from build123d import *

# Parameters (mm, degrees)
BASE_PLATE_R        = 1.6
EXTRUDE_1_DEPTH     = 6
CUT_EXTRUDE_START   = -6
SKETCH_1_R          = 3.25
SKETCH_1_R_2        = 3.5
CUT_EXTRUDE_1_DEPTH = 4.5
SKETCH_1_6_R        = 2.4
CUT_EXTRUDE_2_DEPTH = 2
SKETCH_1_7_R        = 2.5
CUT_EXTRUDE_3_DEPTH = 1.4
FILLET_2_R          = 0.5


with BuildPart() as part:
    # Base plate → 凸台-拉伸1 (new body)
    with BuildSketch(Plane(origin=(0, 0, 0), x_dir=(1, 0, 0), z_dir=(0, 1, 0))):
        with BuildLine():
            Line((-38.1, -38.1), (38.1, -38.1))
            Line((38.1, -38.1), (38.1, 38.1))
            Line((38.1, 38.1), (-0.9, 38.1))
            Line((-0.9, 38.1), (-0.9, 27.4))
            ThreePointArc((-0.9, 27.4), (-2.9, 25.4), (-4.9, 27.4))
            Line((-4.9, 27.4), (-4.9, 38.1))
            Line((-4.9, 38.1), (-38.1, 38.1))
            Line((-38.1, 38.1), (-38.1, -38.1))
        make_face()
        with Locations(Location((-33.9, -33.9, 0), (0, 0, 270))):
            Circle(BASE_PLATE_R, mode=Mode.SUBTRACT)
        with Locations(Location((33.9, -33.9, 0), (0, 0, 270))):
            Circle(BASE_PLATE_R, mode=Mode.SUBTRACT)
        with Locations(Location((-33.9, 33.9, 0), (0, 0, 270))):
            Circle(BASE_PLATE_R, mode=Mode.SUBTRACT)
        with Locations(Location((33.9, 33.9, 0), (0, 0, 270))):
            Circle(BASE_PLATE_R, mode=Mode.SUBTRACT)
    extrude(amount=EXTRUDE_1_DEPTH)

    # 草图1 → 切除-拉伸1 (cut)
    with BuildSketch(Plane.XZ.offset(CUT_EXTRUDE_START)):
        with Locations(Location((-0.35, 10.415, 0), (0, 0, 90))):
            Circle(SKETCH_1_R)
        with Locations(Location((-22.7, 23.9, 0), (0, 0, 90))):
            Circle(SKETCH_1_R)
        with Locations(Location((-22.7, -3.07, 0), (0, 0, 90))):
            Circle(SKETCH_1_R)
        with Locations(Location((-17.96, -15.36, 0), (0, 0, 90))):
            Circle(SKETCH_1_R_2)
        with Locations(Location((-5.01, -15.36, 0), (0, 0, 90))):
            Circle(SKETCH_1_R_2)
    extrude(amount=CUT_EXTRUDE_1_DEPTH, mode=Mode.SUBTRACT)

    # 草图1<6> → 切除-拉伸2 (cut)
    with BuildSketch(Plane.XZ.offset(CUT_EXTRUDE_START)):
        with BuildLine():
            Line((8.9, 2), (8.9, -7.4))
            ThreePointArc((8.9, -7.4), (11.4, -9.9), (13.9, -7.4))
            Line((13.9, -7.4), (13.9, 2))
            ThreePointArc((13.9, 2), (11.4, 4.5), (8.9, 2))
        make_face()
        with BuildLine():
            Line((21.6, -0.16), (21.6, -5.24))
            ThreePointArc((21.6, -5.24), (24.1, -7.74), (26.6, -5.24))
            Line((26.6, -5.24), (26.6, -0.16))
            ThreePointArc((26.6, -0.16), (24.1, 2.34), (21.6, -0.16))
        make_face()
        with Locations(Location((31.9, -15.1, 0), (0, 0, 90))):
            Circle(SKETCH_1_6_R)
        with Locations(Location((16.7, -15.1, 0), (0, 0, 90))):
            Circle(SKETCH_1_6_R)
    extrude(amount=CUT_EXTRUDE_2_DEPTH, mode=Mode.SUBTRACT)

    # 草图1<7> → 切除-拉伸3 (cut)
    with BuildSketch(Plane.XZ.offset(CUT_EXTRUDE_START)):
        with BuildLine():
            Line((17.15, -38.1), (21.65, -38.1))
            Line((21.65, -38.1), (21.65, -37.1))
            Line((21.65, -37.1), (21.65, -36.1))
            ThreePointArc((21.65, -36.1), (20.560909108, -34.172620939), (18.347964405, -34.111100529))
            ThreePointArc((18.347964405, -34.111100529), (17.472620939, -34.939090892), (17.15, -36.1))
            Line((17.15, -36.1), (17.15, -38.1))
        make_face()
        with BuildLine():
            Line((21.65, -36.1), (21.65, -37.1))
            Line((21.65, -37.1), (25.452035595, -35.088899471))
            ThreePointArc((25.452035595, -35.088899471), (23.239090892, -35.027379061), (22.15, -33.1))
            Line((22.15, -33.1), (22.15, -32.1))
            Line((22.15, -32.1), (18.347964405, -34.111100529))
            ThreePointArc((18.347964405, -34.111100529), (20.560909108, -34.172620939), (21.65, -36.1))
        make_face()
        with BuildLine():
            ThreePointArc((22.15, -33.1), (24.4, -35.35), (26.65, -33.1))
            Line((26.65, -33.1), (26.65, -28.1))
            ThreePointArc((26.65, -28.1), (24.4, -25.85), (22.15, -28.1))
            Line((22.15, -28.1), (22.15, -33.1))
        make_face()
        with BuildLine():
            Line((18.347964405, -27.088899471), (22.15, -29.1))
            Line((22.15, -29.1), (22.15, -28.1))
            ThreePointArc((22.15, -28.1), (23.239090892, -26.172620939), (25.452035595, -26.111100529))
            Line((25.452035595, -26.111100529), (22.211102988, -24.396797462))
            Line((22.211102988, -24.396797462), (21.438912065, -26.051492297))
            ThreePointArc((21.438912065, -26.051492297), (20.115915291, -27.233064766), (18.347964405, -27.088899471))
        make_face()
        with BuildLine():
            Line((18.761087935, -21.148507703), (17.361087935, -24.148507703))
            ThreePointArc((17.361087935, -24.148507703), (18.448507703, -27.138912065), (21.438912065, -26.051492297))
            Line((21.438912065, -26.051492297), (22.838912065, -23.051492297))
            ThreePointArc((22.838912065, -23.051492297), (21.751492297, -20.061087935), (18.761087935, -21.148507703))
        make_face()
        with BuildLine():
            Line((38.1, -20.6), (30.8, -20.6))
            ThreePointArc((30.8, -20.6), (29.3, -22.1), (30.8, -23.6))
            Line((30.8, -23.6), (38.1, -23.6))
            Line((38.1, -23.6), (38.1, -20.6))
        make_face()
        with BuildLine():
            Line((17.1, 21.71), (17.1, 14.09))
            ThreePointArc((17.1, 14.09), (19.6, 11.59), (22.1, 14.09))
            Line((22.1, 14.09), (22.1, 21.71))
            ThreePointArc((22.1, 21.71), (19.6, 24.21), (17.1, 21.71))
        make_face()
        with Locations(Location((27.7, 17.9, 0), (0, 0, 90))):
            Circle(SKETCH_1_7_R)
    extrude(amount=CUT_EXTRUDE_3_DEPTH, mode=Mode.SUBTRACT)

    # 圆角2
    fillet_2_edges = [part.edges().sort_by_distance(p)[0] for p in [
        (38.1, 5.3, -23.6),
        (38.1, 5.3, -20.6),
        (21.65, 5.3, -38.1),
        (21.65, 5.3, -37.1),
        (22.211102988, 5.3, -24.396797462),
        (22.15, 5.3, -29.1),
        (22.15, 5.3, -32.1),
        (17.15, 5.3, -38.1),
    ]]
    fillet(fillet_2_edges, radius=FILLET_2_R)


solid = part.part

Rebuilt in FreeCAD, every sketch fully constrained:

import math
import FreeCAD as App
import Part
import Sketcher
from FreeCAD import Vector
Q = App.Units.Quantity


def edges_at(feature, points):
    """Names of the edges that pass closest to the given points."""
    edges = feature.Shape.Edges
    near = lambda p: min(range(len(edges)), key=lambda i: edges[i].distToShape(Part.Vertex(*p))[0])
    return sorted({f"Edge{near(p) + 1}" for p in points})

doc = App.newDocument("Part")
body = doc.addObject("PartDesign::Body", "Body")

# Sketch on XZ plane
sketch1 = body.newObject("Sketcher::SketchObject", "Sketch")
sketch1.AttachmentSupport = (doc.getObject("XZ_Plane"), [""])
sketch1.MapMode = "FlatFace"
sketch1.addGeometry(Part.LineSegment(Vector(-38.1, 38.1, 0), Vector(38.1, 38.1, 0)), False)
sketch1.addGeometry(Part.LineSegment(Vector(38.1, 38.1, 0), Vector(38.1, -38.1, 0)), False)
sketch1.addGeometry(Part.LineSegment(Vector(38.1, -38.1, 0), Vector(-0.9, -38.1, 0)), False)
sketch1.addGeometry(Part.LineSegment(Vector(-0.9, -38.1, 0), Vector(-0.9, -27.4, 0)), False)
sketch1.addGeometry(Part.ArcOfCircle(Part.Circle(Vector(-2.9, -27.4, 0), Vector(0, 0, 1), 2), math.radians(0), math.radians(180)), False)
sketch1.addGeometry(Part.LineSegment(Vector(-4.9, -27.4, 0), Vector(-4.9, -38.1, 0)), False)
sketch1.addGeometry(Part.LineSegment(Vector(-4.9, -38.1, 0), Vector(-38.1, -38.1, 0)), False)
sketch1.addGeometry(Part.LineSegment(Vector(-38.1, -38.1, 0), Vector(-38.1, 38.1, 0)), False)
sketch1.addGeometry(Part.Circle(Vector(-33.9, 33.9, 0), Vector(0, 0, 1), 1.6), False)
sketch1.addGeometry(Part.Circle(Vector(33.9, 33.9, 0), Vector(0, 0, 1), 1.6), False)
sketch1.addGeometry(Part.Circle(Vector(-33.9, -33.9, 0), Vector(0, 0, 1), 1.6), False)
sketch1.addGeometry(Part.Circle(Vector(33.9, -33.9, 0), Vector(0, 0, 1), 1.6), False)
sketch1.addConstraint(Sketcher.Constraint("Coincident", 0, 2, 1, 1))
sketch1.addConstraint(Sketcher.Constraint("Coincident", 1, 2, 2, 1))
sketch1.addConstraint(Sketcher.Constraint("Coincident", 2, 2, 3, 1))
sketch1.addConstraint(Sketcher.Constraint("Tangent", 3, 2, 4, 1))
sketch1.addConstraint(Sketcher.Constraint("Tangent", 4, 2, 5, 1))
sketch1.addConstraint(Sketcher.Constraint("Coincident", 5, 2, 6, 1))
sketch1.addConstraint(Sketcher.Constraint("Coincident", 6, 2, 7, 1))
sketch1.addConstraint(Sketcher.Constraint("Coincident", 7, 2, 0, 1))
sketch1.addConstraint(Sketcher.Constraint("Horizontal", 0))
sketch1.addConstraint(Sketcher.Constraint("Vertical", 1))
sketch1.addConstraint(Sketcher.Constraint("Horizontal", 2))
sketch1.addConstraint(Sketcher.Constraint("Vertical", 3))
sketch1.addConstraint(Sketcher.Constraint("Vertical", 5))
sketch1.addConstraint(Sketcher.Constraint("Horizontal", 6))
sketch1.addConstraint(Sketcher.Constraint("Vertical", 7))
sketch1.addConstraint(Sketcher.Constraint("Equal", 8, 9))
sketch1.addConstraint(Sketcher.Constraint("Equal", 9, 10))
sketch1.addConstraint(Sketcher.Constraint("Equal", 10, 11))
sketch1.addConstraint(Sketcher.Constraint("Symmetric", 9, 3, 10, 3, -1, 1))
sketch1.addConstraint(Sketcher.Constraint("Symmetric", 8, 3, 11, 3, -1, 1))
sketch1.addConstraint(Sketcher.Constraint("Symmetric", 0, 2, 6, 2, -1, 1))
sketch1.addConstraint(Sketcher.Constraint("Symmetric", 8, 3, 9, 3, -2))
sketch1.addConstraint(Sketcher.Constraint("Horizontal", 2, 2, 5, 2))
sketch1.addConstraint(Sketcher.Constraint("Equal", 0, 1))
sketch1.addConstraint(Sketcher.Constraint("Radius", 4, Q("2 mm")))
sketch1.addConstraint(Sketcher.Constraint("Diameter", 8, Q("3.2 mm")))
sketch1.addConstraint(Sketcher.Constraint("DistanceX", 2, 2, 2, 1, Q("39 mm")))
sketch1.addConstraint(Sketcher.Constraint("DistanceX", 0, 1, 0, 2, Q("76.2 mm")))
sketch1.addConstraint(Sketcher.Constraint("DistanceY", 3, 1, 3, 2, Q("10.7 mm")))
sketch1.addConstraint(Sketcher.Constraint("DistanceX", 8, 3, 4, 3, Q("31 mm")))
sketch1.addConstraint(Sketcher.Constraint("DistanceY", 11, 3, 0, 2, Q("72 mm")))
pad1 = body.newObject("PartDesign::Pad", "Pad")
pad1.Profile = sketch1
pad1.Length = 6
pad1.Reversed = True

# Sketch on XZ plane
sketch2 = body.newObject("Sketcher::SketchObject", "Sketch001")
sketch2.AttachmentSupport = (doc.getObject("XZ_Plane"), [""])
sketch2.MapMode = "FlatFace"
sketch2.AttachmentOffset = App.Placement(Vector(0, 0, -6), App.Rotation())
sketch2.addGeometry(Part.Circle(Vector(-0.3, 10.4, 0), Vector(0, 0, 1), 3.2), False)
sketch2.addGeometry(Part.Circle(Vector(-22.7, 23.9, 0), Vector(0, 0, 1), 3.2), False)
sketch2.addGeometry(Part.Circle(Vector(-22.7, -3.1, 0), Vector(0, 0, 1), 3.2), False)
sketch2.addGeometry(Part.Circle(Vector(-18, -15.4, 0), Vector(0, 0, 1), 3.5), False)
sketch2.addGeometry(Part.Circle(Vector(-5, -15.4, 0), Vector(0, 0, 1), 3.5), False)
sketch2.addConstraint(Sketcher.Constraint("Equal", 0, 1))
sketch2.addConstraint(Sketcher.Constraint("Equal", 1, 2))
sketch2.addConstraint(Sketcher.Constraint("Equal", 3, 4))
sketch2.addConstraint(Sketcher.Constraint("Horizontal", 3, 3, 4, 3))
sketch2.addConstraint(Sketcher.Constraint("Vertical", 1, 3, 2, 3))
sketch2.addConstraint(Sketcher.Constraint("Diameter", 3, Q("7 mm")))
sketch2.addConstraint(Sketcher.Constraint("Diameter", 0, Q("6.5 mm")))
sketch2.addConstraint(Sketcher.Constraint("DistanceX", 1, 3, -1, 1, Q("22.7 mm")))
sketch2.addConstraint(Sketcher.Constraint("DistanceY", -1, 1, 1, 3, Q("23.9 mm")))
sketch2.addConstraint(Sketcher.Constraint("DistanceX", 0, 3, -1, 1, Q("0.35 mm")))
sketch2.addConstraint(Sketcher.Constraint("DistanceY", 2, 3, -1, 1, Q("3.07 mm")))
sketch2.addConstraint(Sketcher.Constraint("DistanceX", 3, 3, -1, 1, Q("17.96 mm")))
sketch2.addConstraint(Sketcher.Constraint("DistanceY", 3, 3, -1, 1, Q("15.36 mm")))
sketch2.addConstraint(Sketcher.Constraint("DistanceX", 4, 3, -1, 1, Q("5.01 mm")))
sketch2.addConstraint(Sketcher.Constraint("DistanceY", -1, 1, 0, 3, Q("10.415 mm")))
pocket1 = body.newObject("PartDesign::Pocket", "Pocket")
pocket1.Profile = sketch2
pocket1.Length = 4.5
pocket1.Reversed = True

# Sketch on XZ plane
sketch3 = body.newObject("Sketcher::SketchObject", "Sketch002")
sketch3.AttachmentSupport = (doc.getObject("XZ_Plane"), [""])
sketch3.MapMode = "FlatFace"
sketch3.AttachmentOffset = App.Placement(Vector(0, 0, -6), App.Rotation())
sketch3.addGeometry(Part.LineSegment(Vector(8.9, 2, 0), Vector(8.9, -7.4, 0)), False)
sketch3.addGeometry(Part.ArcOfCircle(Part.Circle(Vector(11.4, -7.4, 0), Vector(0, 0, 1), 2.5), math.radians(180), math.radians(360)), False)
sketch3.addGeometry(Part.LineSegment(Vector(13.9, -7.4, 0), Vector(13.9, 2, 0)), False)
sketch3.addGeometry(Part.ArcOfCircle(Part.Circle(Vector(11.4, 2, 0), Vector(0, 0, 1), 2.5), math.radians(0), math.radians(180)), False)
sketch3.addGeometry(Part.LineSegment(Vector(21.6, -0.2, 0), Vector(21.6, -5.2, 0)), False)
sketch3.addGeometry(Part.ArcOfCircle(Part.Circle(Vector(24.1, -5.2, 0), Vector(0, 0, 1), 2.5), math.radians(180), math.radians(360)), False)
sketch3.addGeometry(Part.LineSegment(Vector(26.6, -5.2, 0), Vector(26.6, -0.2, 0)), False)
sketch3.addGeometry(Part.ArcOfCircle(Part.Circle(Vector(24.1, -0.2, 0), Vector(0, 0, 1), 2.5), math.radians(0), math.radians(180)), False)
sketch3.addGeometry(Part.Circle(Vector(31.9, -15.1, 0), Vector(0, 0, 1), 2.4), False)
sketch3.addGeometry(Part.Circle(Vector(16.7, -15.1, 0), Vector(0, 0, 1), 2.4), False)
sketch3.addConstraint(Sketcher.Constraint("Tangent", 0, 2, 1, 1))
sketch3.addConstraint(Sketcher.Constraint("Tangent", 1, 2, 2, 1))
sketch3.addConstraint(Sketcher.Constraint("Tangent", 2, 2, 3, 1))
sketch3.addConstraint(Sketcher.Constraint("Tangent", 3, 2, 0, 1))
sketch3.addConstraint(Sketcher.Constraint("Tangent", 4, 2, 5, 1))
sketch3.addConstraint(Sketcher.Constraint("Tangent", 5, 2, 6, 1))
sketch3.addConstraint(Sketcher.Constraint("Tangent", 6, 2, 7, 1))
sketch3.addConstraint(Sketcher.Constraint("Tangent", 7, 2, 4, 1))
sketch3.addConstraint(Sketcher.Constraint("Vertical", 0))
sketch3.addConstraint(Sketcher.Constraint("Vertical", 2))
sketch3.addConstraint(Sketcher.Constraint("Vertical", 4))
sketch3.addConstraint(Sketcher.Constraint("Vertical", 6))
sketch3.addConstraint(Sketcher.Constraint("Equal", 3, 5))
sketch3.addConstraint(Sketcher.Constraint("Equal", 8, 9))
sketch3.addConstraint(Sketcher.Constraint("Horizontal", 8, 3, 9, 3))
sketch3.addConstraint(Sketcher.Constraint("Diameter", 8, Q("4.8 mm")))
sketch3.addConstraint(Sketcher.Constraint("Radius", 1, Q("2.5 mm")))
sketch3.addConstraint(Sketcher.Constraint("DistanceY", 0, 2, 0, 1, Q("9.4 mm")))
sketch3.addConstraint(Sketcher.Constraint("DistanceY", -1, 1, 3, 3, Q("2 mm")))
sketch3.addConstraint(Sketcher.Constraint("DistanceY", 4, 2, 4, 1, Q("5.08 mm")))
sketch3.addConstraint(Sketcher.Constraint("DistanceX", -1, 1, 1, 3, Q("11.4 mm")))
sketch3.addConstraint(Sketcher.Constraint("DistanceX", -1, 1, 5, 3, Q("24.1 mm")))
sketch3.addConstraint(Sketcher.Constraint("DistanceX", -1, 1, 8, 3, Q("31.9 mm")))
sketch3.addConstraint(Sketcher.Constraint("DistanceY", 8, 3, -1, 1, Q("15.1 mm")))
sketch3.addConstraint(Sketcher.Constraint("DistanceX", -1, 1, 9, 3, Q("16.7 mm")))
sketch3.addConstraint(Sketcher.Constraint("DistanceY", 5, 3, -1, 1, Q("5.24 mm")))
pocket2 = body.newObject("PartDesign::Pocket", "Pocket001")
pocket2.Profile = sketch3
pocket2.Length = 2
pocket2.Reversed = True

# Sketch on XZ plane
sketch4 = body.newObject("Sketcher::SketchObject", "Sketch003")
sketch4.AttachmentSupport = (doc.getObject("XZ_Plane"), [""])
sketch4.MapMode = "FlatFace"
sketch4.AttachmentOffset = App.Placement(Vector(0, 0, -6), App.Rotation())
sketch4.addGeometry(Part.LineSegment(Vector(17.1, -38.1, 0), Vector(21.6, -38.1, 0)), False)
sketch4.addGeometry(Part.LineSegment(Vector(21.6, -38.1, 0), Vector(21.6, -37.1, 0)), False)
sketch4.addGeometry(Part.LineSegment(Vector(21.6, -37.1, 0), Vector(25.5, -35.1, 0)), False)
sketch4.addGeometry(Part.ArcOfCircle(Part.Circle(Vector(24.4, -33.1, 0), Vector(0, 0, 1), 2.2), math.radians(-62), math.radians(0)), False)
sketch4.addGeometry(Part.LineSegment(Vector(26.6, -33.1, 0), Vector(26.6, -28.1, 0)), False)
sketch4.addGeometry(Part.ArcOfCircle(Part.Circle(Vector(24.4, -28.1, 0), Vector(0, 0, 1), 2.2), math.radians(0), math.radians(62)), False)
sketch4.addGeometry(Part.LineSegment(Vector(25.5, -26.1, 0), Vector(22.2, -24.4, 0)), False)
sketch4.addGeometry(Part.LineSegment(Vector(22.2, -24.4, 0), Vector(22.8, -23.1, 0)), False)
sketch4.addGeometry(Part.ArcOfCircle(Part.Circle(Vector(20.8, -22.1, 0), Vector(0, 0, 1), 2.2), math.radians(-25), math.radians(155)), False)
sketch4.addGeometry(Part.LineSegment(Vector(18.8, -21.1, 0), Vector(17.4, -24.1, 0)), False)
sketch4.addGeometry(Part.ArcOfCircle(Part.Circle(Vector(19.4, -25.1, 0), Vector(0, 0, 1), 2.2), math.radians(155), math.radians(242)), False)
sketch4.addGeometry(Part.LineSegment(Vector(18.3, -27.1, 0), Vector(22.1, -29.1, 0)), False)
sketch4.addGeometry(Part.LineSegment(Vector(22.1, -29.1, 0), Vector(22.1, -32.1, 0)), False)
sketch4.addGeometry(Part.LineSegment(Vector(22.1, -32.1, 0), Vector(18.3, -34.1, 0)), False)
sketch4.addGeometry(Part.ArcOfCircle(Part.Circle(Vector(19.4, -36.1, 0), Vector(0, 0, 1), 2.2), math.radians(118), math.radians(180)), False)
sketch4.addGeometry(Part.LineSegment(Vector(17.1, -36.1, 0), Vector(17.1, -38.1, 0)), False)
sketch4.addGeometry(Part.LineSegment(Vector(38.1, -20.6, 0), Vector(30.8, -20.6, 0)), False)
sketch4.addGeometry(Part.ArcOfCircle(Part.Circle(Vector(30.8, -22.1, 0), Vector(0, 0, 1), 1.5), math.radians(90), math.radians(270)), False)
sketch4.addGeometry(Part.LineSegment(Vector(30.8, -23.6, 0), Vector(38.1, -23.6, 0)), False)
sketch4.addGeometry(Part.LineSegment(Vector(38.1, -23.6, 0), Vector(38.1, -20.6, 0)), False)
sketch4.addGeometry(Part.LineSegment(Vector(17.1, 21.7, 0), Vector(17.1, 14.1, 0)), False)
sketch4.addGeometry(Part.ArcOfCircle(Part.Circle(Vector(19.6, 14.1, 0), Vector(0, 0, 1), 2.5), math.radians(180), math.radians(360)), False)
sketch4.addGeometry(Part.LineSegment(Vector(22.1, 14.1, 0), Vector(22.1, 21.7, 0)), False)
sketch4.addGeometry(Part.ArcOfCircle(Part.Circle(Vector(19.6, 21.7, 0), Vector(0, 0, 1), 2.5), math.radians(0), math.radians(180)), False)
sketch4.addGeometry(Part.Circle(Vector(27.7, 17.9, 0), Vector(0, 0, 1), 2.5), False)
sketch4.addConstraint(Sketcher.Constraint("Coincident", 0, 2, 1, 1))
sketch4.addConstraint(Sketcher.Constraint("Coincident", 1, 2, 2, 1))
sketch4.addConstraint(Sketcher.Constraint("Tangent", 2, 2, 3, 1))
sketch4.addConstraint(Sketcher.Constraint("Tangent", 3, 2, 4, 1))
sketch4.addConstraint(Sketcher.Constraint("Tangent", 4, 2, 5, 1))
sketch4.addConstraint(Sketcher.Constraint("Tangent", 5, 2, 6, 1))
sketch4.addConstraint(Sketcher.Constraint("Coincident", 6, 2, 7, 1))
sketch4.addConstraint(Sketcher.Constraint("Tangent", 7, 2, 8, 1))
sketch4.addConstraint(Sketcher.Constraint("Tangent", 8, 2, 9, 1))
sketch4.addConstraint(Sketcher.Constraint("Tangent", 9, 2, 10, 1))
sketch4.addConstraint(Sketcher.Constraint("Tangent", 10, 2, 11, 1))
sketch4.addConstraint(Sketcher.Constraint("Coincident", 11, 2, 12, 1))
sketch4.addConstraint(Sketcher.Constraint("Coincident", 12, 2, 13, 1))
sketch4.addConstraint(Sketcher.Constraint("Tangent", 13, 2, 14, 1))
sketch4.addConstraint(Sketcher.Constraint("Tangent", 14, 2, 15, 1))
sketch4.addConstraint(Sketcher.Constraint("Coincident", 15, 2, 0, 1))
sketch4.addConstraint(Sketcher.Constraint("Tangent", 16, 2, 17, 1))
sketch4.addConstraint(Sketcher.Constraint("Tangent", 17, 2, 18, 1))
sketch4.addConstraint(Sketcher.Constraint("Coincident", 18, 2, 19, 1))
sketch4.addConstraint(Sketcher.Constraint("Coincident", 19, 2, 16, 1))
sketch4.addConstraint(Sketcher.Constraint("Tangent", 20, 2, 21, 1))
sketch4.addConstraint(Sketcher.Constraint("Tangent", 21, 2, 22, 1))
sketch4.addConstraint(Sketcher.Constraint("Tangent", 22, 2, 23, 1))
sketch4.addConstraint(Sketcher.Constraint("Tangent", 23, 2, 20, 1))
sketch4.addConstraint(Sketcher.Constraint("Horizontal", 0))
sketch4.addConstraint(Sketcher.Constraint("Vertical", 1))
sketch4.addConstraint(Sketcher.Constraint("Vertical", 4))
sketch4.addConstraint(Sketcher.Constraint("Vertical", 12))
sketch4.addConstraint(Sketcher.Constraint("Vertical", 15))
sketch4.addConstraint(Sketcher.Constraint("Horizontal", 16))
sketch4.addConstraint(Sketcher.Constraint("Horizontal", 18))
sketch4.addConstraint(Sketcher.Constraint("Vertical", 19))
sketch4.addConstraint(Sketcher.Constraint("Vertical", 20))
sketch4.addConstraint(Sketcher.Constraint("Vertical", 22))
sketch4.addConstraint(Sketcher.Constraint("Equal", 3, 5))
sketch4.addConstraint(Sketcher.Constraint("Equal", 5, 8))
sketch4.addConstraint(Sketcher.Constraint("Equal", 8, 10))
sketch4.addConstraint(Sketcher.Constraint("Equal", 10, 14))
sketch4.addConstraint(Sketcher.Constraint("Equal", 23, 24))
sketch4.addConstraint(Sketcher.Constraint("Parallel", 7, 9))
sketch4.addConstraint(Sketcher.Constraint("Parallel", 6, 11))
sketch4.addConstraint(Sketcher.Constraint("Parallel", 2, 13))
sketch4.addConstraint(Sketcher.Constraint("Horizontal", 8, 3, 17, 3))
sketch4.addConstraint(Sketcher.Constraint("Vertical", 10, 3, 14, 3))
sketch4.addConstraint(Sketcher.Constraint("Vertical", 2, 2, 5, 2))
sketch4.addConstraint(Sketcher.Constraint("Equal", 12, 19))
sketch4.addConstraint(Sketcher.Constraint("Equal", 2, 11))
sketch4.addConstraint(Sketcher.Constraint("Diameter", 24, Q("5 mm")))
sketch4.addConstraint(Sketcher.Constraint("Radius", 17, Q("1.5 mm")))
sketch4.addConstraint(Sketcher.Constraint("DistanceY", 1, 1, 1, 2, Q("1 mm")))
sketch4.addConstraint(Sketcher.Constraint("DistanceY", 4, 1, 4, 2, Q("5 mm")))
sketch4.addConstraint(Sketcher.Constraint("DistanceY", 15, 2, 15, 1, Q("2 mm")))
sketch4.addConstraint(Sketcher.Constraint("Radius", 3, Q("2.25 mm")))
sketch4.addConstraint(Sketcher.Constraint("DistanceX", 0, 1, 0, 2, Q("4.5 mm")))
sketch4.addConstraint(Sketcher.Constraint("DistanceX", 16, 2, 16, 1, Q("7.3 mm")))
sketch4.addConstraint(Sketcher.Constraint("DistanceY", 5, 3, 8, 3, Q("6 mm")))
sketch4.addConstraint(Sketcher.Constraint("DistanceY", 10, 3, 8, 3, Q("3 mm")))
sketch4.addConstraint(Sketcher.Constraint("DistanceX", 10, 3, 5, 3, Q("5 mm")))
sketch4.addConstraint(Sketcher.Constraint("DistanceX", 8, 3, 17, 3, Q("10 mm")))
sketch4.addConstraint(Sketcher.Constraint("DistanceY", 17, 3, 24, 3, Q("40 mm")))
sketch4.addConstraint(Sketcher.Constraint("DistanceY", 20, 2, 20, 1, Q("7.62 mm")))
sketch4.addConstraint(Sketcher.Constraint("DistanceX", -1, 1, 3, 3, Q("24.4 mm")))
sketch4.addConstraint(Sketcher.Constraint("DistanceY", 3, 3, -1, 1, Q("33.1 mm")))
sketch4.addConstraint(Sketcher.Constraint("DistanceX", -1, 1, 8, 3, Q("20.8 mm")))
sketch4.addConstraint(Sketcher.Constraint("DistanceX", -1, 1, 21, 3, Q("19.6 mm")))
sketch4.addConstraint(Sketcher.Constraint("DistanceX", -1, 1, 24, 3, Q("27.7 mm")))
sketch4.addConstraint(Sketcher.Constraint("DistanceY", -1, 1, 21, 3, Q("14.09 mm")))
pocket3 = body.newObject("PartDesign::Pocket", "Pocket002")
pocket3.Profile = sketch4
pocket3.Length = 1.4
pocket3.Reversed = True
doc.recompute()

fillet = body.newObject("PartDesign::Fillet", "Fillet")
fillet.Base = (pocket3, edges_at(pocket3, [
    (38.1, 5.3, -23.6),
    (38.1, 5.3, -20.6),
    (21.65, 5.3, -38.1),
    (21.65, 5.3, -37.1),
    (22.211, 5.3, -24.397),
    (22.15, 5.3, -29.1),
    (22.15, 5.3, -32.1),
    (17.15, 5.3, -38.1),
]))
fillet.Radius = 0.5

doc.recompute()
